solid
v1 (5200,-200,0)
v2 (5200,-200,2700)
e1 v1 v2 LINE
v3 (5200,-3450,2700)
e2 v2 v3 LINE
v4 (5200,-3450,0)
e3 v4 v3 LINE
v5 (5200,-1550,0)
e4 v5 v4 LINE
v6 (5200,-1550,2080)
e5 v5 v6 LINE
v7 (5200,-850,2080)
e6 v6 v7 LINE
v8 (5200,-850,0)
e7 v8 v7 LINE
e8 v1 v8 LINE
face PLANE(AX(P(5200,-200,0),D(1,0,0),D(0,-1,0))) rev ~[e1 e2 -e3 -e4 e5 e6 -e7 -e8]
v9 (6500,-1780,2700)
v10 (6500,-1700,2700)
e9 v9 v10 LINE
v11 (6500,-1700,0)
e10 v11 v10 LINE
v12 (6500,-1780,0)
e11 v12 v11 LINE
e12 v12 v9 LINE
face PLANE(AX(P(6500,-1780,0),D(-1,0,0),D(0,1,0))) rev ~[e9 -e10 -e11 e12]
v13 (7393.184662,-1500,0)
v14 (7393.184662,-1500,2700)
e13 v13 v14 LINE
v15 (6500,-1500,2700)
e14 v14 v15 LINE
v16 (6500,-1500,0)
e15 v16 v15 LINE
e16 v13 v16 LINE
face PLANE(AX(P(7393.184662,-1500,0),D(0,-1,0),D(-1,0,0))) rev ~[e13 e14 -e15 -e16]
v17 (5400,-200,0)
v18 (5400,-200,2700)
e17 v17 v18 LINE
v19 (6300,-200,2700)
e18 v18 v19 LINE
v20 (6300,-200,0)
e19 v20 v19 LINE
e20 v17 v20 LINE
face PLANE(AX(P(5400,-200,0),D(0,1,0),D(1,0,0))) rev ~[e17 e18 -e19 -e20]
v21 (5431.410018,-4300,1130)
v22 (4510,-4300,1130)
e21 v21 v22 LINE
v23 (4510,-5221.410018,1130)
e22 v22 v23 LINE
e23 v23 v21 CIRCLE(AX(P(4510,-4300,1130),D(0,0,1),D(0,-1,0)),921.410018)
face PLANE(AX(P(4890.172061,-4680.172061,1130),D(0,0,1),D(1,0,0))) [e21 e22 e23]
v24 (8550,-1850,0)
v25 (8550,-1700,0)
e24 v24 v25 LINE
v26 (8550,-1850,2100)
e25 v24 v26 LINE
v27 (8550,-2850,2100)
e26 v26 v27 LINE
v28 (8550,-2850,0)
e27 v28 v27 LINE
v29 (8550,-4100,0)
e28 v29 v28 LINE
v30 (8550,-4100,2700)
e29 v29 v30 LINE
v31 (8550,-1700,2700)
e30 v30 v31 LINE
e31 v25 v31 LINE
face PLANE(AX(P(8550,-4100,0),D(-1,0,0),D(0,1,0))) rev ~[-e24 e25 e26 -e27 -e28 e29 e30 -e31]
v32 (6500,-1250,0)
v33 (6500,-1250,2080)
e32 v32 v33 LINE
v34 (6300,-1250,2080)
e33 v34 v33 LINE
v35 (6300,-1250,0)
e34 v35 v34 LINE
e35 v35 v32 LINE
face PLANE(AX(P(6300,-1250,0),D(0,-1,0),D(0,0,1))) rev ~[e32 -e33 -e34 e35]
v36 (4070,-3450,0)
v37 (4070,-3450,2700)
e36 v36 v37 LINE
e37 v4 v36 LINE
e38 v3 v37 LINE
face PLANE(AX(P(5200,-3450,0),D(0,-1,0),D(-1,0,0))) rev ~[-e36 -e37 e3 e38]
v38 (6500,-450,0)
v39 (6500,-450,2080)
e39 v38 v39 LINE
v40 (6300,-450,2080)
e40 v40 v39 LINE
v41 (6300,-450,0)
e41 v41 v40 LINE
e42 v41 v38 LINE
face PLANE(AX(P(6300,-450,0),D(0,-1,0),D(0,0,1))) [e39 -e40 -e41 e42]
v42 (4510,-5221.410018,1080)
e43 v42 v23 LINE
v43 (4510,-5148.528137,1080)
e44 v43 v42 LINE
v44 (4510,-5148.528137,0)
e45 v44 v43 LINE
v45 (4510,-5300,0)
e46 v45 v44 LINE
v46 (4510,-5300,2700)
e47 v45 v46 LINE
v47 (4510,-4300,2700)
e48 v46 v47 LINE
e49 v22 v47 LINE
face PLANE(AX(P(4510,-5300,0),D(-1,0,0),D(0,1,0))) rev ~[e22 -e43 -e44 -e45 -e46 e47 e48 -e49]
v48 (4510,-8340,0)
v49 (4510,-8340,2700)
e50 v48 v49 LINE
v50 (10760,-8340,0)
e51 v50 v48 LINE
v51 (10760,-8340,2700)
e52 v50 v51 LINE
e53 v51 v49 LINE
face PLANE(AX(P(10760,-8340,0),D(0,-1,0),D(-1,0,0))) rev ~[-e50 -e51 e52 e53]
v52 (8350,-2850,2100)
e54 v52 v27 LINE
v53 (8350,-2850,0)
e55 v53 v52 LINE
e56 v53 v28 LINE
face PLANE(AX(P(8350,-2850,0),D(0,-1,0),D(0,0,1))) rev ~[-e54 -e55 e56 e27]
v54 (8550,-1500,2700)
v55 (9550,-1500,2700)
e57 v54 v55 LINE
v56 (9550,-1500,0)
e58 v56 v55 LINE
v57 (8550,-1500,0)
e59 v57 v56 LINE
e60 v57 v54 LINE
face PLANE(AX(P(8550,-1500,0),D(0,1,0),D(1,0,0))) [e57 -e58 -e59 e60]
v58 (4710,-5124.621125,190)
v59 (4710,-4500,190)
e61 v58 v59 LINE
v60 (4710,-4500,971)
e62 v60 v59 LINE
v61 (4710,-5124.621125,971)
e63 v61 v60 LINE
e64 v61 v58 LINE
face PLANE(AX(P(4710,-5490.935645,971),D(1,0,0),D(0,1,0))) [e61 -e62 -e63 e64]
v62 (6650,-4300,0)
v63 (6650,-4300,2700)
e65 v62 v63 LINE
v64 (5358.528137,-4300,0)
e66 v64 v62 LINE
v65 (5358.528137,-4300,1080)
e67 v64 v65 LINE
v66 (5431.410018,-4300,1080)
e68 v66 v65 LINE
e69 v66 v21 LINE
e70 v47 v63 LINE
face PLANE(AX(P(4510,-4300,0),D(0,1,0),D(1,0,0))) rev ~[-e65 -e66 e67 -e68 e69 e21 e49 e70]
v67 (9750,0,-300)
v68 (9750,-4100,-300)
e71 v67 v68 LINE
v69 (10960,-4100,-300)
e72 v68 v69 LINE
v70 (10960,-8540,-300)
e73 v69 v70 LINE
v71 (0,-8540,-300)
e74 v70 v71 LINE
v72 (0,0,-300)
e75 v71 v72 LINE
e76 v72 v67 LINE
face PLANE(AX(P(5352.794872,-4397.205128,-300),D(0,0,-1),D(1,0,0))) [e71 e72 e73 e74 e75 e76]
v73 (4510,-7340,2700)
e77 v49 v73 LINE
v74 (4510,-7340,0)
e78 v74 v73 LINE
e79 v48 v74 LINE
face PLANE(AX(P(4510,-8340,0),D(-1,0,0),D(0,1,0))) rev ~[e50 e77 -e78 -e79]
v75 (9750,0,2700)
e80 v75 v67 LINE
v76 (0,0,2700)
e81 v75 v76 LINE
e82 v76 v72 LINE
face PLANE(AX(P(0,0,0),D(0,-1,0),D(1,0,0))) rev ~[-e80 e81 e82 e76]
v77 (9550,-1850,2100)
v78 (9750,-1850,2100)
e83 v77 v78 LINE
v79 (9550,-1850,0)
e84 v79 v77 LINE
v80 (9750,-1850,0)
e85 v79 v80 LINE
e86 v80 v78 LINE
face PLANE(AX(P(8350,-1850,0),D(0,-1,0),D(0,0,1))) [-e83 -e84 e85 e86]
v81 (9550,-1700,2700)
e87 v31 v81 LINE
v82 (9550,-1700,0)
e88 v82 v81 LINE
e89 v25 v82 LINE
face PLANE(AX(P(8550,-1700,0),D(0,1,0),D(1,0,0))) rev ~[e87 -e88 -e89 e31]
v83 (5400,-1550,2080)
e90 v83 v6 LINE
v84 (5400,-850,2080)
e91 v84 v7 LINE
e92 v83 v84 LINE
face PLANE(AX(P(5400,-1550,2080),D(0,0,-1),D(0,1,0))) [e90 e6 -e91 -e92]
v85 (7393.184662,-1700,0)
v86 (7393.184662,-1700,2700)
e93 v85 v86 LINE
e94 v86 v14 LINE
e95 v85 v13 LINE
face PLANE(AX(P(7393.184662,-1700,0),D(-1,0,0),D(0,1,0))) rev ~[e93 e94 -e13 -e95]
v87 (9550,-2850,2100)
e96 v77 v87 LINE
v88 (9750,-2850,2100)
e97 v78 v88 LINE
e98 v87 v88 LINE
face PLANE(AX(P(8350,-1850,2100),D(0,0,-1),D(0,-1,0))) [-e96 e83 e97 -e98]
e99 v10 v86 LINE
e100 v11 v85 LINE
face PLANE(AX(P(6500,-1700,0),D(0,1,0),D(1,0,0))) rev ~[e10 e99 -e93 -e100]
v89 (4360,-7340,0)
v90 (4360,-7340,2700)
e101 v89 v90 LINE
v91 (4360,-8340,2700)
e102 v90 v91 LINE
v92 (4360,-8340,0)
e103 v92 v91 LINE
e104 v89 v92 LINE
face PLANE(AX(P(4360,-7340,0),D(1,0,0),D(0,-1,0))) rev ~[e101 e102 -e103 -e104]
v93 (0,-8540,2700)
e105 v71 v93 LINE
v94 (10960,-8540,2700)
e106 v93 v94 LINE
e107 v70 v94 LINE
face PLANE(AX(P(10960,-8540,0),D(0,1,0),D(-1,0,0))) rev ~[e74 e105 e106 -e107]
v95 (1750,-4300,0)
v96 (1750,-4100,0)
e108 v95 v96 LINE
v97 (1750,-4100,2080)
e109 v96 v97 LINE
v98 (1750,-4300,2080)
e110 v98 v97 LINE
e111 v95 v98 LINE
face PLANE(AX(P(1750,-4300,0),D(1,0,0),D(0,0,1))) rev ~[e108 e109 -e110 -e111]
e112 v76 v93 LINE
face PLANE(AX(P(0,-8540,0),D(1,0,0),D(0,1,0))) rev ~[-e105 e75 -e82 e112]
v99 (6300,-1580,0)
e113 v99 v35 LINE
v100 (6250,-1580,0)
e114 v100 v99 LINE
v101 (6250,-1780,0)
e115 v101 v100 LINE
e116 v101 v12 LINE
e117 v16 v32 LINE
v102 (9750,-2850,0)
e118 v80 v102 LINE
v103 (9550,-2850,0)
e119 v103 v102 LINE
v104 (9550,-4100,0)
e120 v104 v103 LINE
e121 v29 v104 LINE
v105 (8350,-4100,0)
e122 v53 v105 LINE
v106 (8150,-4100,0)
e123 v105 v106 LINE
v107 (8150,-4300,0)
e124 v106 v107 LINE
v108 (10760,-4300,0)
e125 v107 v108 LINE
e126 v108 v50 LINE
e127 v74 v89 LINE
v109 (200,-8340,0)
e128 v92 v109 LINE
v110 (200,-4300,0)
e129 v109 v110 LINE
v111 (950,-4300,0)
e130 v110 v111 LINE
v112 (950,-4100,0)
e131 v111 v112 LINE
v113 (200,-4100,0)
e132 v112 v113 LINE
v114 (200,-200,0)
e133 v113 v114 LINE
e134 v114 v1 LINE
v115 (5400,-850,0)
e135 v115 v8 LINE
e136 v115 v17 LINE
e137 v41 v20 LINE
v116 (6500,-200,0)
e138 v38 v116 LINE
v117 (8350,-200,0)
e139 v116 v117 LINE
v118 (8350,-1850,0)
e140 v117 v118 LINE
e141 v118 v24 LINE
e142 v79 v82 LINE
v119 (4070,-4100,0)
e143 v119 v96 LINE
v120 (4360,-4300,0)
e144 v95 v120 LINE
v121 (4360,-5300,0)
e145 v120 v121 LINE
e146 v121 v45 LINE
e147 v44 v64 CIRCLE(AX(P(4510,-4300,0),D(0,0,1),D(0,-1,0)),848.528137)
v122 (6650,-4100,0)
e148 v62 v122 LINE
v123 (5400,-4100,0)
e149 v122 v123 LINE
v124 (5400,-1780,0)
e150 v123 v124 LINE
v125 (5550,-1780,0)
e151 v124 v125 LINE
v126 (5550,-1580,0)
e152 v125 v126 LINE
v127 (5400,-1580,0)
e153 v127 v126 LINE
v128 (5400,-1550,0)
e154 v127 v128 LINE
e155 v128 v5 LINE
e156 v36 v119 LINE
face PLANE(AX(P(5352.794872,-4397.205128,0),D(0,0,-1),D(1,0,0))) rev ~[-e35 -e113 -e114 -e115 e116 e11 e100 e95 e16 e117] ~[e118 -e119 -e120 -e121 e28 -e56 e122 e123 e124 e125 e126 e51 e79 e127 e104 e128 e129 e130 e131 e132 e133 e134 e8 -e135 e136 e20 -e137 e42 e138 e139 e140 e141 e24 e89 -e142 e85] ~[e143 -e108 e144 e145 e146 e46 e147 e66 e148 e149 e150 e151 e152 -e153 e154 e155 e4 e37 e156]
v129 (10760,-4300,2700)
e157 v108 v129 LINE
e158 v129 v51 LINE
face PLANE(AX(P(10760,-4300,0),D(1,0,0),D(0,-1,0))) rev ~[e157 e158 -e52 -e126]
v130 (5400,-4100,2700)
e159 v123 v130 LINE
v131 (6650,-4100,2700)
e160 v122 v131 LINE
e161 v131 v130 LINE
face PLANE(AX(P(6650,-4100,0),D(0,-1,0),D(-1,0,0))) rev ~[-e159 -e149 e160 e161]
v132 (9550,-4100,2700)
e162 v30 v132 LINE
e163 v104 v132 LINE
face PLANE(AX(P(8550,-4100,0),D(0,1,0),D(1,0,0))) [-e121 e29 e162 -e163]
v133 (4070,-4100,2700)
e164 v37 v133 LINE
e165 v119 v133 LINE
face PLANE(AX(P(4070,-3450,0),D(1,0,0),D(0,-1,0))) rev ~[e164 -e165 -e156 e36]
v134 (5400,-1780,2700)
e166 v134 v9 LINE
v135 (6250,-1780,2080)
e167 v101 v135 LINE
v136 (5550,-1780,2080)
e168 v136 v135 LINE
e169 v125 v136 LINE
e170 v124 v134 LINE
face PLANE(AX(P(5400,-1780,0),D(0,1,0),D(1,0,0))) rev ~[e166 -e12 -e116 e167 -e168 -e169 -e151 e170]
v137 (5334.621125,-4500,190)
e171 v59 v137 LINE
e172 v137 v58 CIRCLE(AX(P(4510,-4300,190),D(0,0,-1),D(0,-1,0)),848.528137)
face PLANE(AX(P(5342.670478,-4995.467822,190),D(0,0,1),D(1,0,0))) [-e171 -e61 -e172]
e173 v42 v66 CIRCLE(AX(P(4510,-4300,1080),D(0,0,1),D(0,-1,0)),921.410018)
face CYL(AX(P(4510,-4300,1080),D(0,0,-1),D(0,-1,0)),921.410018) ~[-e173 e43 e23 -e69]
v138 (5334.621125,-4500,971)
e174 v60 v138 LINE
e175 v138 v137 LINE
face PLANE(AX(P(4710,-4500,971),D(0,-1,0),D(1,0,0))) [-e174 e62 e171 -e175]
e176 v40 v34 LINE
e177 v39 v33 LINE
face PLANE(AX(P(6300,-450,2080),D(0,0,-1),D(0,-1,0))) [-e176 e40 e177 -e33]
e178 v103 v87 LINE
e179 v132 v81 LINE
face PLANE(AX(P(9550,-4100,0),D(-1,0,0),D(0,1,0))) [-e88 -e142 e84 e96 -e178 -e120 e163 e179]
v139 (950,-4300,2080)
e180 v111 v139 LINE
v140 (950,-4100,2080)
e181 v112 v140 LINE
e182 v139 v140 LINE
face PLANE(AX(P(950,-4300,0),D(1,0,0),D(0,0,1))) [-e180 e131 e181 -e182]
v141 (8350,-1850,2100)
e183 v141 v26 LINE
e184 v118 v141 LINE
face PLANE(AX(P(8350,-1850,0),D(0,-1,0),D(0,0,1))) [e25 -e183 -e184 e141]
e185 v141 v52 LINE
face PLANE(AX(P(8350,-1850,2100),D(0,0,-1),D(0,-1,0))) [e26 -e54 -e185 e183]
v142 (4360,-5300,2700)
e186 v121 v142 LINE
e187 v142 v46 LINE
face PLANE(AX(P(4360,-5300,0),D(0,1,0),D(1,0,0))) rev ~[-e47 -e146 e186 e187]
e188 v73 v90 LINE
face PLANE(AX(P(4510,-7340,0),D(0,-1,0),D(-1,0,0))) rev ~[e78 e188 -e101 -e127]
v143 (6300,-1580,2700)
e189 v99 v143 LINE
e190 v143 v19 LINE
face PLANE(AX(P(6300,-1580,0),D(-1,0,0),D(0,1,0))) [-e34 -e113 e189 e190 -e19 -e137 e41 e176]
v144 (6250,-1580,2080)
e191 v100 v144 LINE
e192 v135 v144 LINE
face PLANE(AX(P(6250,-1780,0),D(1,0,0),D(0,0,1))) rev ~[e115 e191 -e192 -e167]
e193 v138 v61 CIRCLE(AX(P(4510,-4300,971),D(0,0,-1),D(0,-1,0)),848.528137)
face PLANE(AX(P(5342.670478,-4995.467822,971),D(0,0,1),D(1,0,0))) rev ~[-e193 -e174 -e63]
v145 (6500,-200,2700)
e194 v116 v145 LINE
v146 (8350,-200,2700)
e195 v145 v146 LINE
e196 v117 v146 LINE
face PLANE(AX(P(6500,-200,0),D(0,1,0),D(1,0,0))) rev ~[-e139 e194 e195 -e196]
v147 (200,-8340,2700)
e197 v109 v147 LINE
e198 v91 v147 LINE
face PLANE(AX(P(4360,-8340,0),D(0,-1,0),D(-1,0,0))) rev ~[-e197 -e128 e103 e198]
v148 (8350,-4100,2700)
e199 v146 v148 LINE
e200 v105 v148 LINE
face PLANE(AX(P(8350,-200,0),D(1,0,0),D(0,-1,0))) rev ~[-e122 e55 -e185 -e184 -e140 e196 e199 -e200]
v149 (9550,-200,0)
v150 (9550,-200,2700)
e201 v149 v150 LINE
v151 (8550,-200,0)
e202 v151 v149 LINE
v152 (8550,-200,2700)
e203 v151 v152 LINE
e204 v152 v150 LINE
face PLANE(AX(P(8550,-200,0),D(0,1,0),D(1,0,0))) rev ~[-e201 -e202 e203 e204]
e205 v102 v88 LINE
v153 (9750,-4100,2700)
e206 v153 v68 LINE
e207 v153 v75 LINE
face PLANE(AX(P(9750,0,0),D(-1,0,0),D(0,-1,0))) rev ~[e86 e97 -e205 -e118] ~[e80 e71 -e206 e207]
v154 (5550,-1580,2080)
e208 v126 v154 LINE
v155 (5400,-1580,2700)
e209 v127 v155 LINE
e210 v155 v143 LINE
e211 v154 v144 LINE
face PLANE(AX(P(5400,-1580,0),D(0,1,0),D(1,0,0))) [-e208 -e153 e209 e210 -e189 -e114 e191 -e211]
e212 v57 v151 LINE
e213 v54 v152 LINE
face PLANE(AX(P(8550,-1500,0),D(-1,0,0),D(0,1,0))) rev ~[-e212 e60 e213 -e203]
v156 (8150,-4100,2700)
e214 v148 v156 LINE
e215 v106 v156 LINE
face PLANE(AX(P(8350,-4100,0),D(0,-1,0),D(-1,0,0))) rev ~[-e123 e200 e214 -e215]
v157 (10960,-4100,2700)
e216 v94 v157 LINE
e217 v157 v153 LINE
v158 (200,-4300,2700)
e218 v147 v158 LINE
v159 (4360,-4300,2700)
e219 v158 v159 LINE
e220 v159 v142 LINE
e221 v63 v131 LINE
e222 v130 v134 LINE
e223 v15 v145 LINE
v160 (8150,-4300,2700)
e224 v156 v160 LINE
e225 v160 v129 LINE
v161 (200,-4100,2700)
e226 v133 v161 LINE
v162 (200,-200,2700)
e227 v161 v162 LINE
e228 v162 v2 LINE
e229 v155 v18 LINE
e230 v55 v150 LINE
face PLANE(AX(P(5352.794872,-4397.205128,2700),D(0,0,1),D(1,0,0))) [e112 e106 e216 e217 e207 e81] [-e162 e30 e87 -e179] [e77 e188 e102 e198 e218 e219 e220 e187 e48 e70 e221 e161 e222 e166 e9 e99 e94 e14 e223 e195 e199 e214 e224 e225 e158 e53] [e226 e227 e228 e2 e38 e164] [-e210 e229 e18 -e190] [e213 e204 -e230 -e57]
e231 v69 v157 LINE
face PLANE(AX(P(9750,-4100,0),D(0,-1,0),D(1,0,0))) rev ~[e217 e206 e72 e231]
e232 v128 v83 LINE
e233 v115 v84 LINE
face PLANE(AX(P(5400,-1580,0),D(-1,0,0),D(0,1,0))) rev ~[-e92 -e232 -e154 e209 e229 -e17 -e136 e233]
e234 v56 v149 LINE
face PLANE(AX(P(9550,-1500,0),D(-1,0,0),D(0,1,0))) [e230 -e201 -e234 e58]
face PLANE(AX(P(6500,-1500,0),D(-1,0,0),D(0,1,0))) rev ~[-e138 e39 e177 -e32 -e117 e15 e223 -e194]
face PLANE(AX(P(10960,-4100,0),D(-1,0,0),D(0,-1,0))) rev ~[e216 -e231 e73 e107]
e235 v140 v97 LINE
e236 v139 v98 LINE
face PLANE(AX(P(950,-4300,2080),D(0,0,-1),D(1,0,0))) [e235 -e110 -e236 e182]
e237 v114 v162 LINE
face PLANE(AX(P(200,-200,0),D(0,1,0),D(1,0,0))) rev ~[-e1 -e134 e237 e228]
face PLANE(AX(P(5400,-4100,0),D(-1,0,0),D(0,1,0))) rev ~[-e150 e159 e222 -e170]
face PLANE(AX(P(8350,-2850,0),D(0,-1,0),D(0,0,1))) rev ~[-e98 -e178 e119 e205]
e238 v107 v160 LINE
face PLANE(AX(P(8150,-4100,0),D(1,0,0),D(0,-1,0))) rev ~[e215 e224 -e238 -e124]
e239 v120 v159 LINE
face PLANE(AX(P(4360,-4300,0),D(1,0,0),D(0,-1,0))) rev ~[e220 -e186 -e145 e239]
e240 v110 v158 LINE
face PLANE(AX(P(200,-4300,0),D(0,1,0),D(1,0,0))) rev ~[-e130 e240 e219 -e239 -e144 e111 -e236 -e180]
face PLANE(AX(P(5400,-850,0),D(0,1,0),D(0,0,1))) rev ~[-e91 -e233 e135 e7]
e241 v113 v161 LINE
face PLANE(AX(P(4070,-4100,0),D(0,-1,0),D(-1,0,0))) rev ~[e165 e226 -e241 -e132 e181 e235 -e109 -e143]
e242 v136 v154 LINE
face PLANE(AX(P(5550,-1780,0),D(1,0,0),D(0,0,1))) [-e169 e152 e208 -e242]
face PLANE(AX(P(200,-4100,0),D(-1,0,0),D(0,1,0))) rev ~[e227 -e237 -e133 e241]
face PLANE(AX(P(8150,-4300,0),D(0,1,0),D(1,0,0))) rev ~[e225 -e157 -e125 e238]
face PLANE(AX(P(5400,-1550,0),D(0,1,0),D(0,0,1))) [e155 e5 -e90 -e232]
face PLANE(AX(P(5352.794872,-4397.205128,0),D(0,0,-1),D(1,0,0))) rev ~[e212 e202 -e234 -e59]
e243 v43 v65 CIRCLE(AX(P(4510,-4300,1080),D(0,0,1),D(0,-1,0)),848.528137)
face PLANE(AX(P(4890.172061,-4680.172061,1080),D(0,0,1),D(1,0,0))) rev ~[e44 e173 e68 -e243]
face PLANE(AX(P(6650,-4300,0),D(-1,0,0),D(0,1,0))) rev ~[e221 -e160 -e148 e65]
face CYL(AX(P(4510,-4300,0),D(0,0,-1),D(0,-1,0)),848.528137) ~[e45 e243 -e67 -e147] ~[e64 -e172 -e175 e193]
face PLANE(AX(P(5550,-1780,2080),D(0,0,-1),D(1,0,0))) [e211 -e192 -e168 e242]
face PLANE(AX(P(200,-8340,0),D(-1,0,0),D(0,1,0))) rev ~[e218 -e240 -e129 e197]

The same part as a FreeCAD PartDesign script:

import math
import FreeCAD as App
import Part
import Sketcher

doc = App.newDocument("Part")
body = doc.addObject("PartDesign::Body", "Body")

# Sketch on XY plane
sketch1 = body.newObject("Sketcher::SketchObject", "Sketch")
sketch1.AttachmentSupport = (doc.getObject("XY_Plane"), [""])
sketch1.MapMode = "FlatFace"
sketch1.addGeometry([
    Part.LineSegment(App.Vector(9750, 0, 0), App.Vector(0, 0, 0)),  # 0
    Part.LineSegment(App.Vector(0, 0, 0), App.Vector(0, -8540, 0)),  # 1
    Part.LineSegment(App.Vector(0, -8540, 0), App.Vector(10960, -8540, 0)),  # 2
    Part.LineSegment(App.Vector(10960, -8540, 0), App.Vector(10960, -4100, 0)),  # 3
    Part.LineSegment(App.Vector(10960, -4100, 0), App.Vector(9750, -4100, 0)),  # 4
    Part.LineSegment(App.Vector(9750, -4100, 0), App.Vector(9750, 0, 0)),  # 5
    Part.LineSegment(App.Vector(4070, -4100, 0), App.Vector(200, -4100, 0)),  # 6
    Part.LineSegment(App.Vector(200, -4100, 0), App.Vector(200, -200, 0)),  # 7
    Part.LineSegment(App.Vector(200, -200, 0), App.Vector(5200, -200, 0)),  # 8
    Part.LineSegment(App.Vector(5200, -200, 0), App.Vector(5200, -3450, 0)),  # 9
    Part.LineSegment(App.Vector(5200, -3450, 0), App.Vector(4070, -3450, 0)),  # 10
    Part.LineSegment(App.Vector(4070, -3450, 0), App.Vector(4070, -4100, 0)),  # 11
    Part.LineSegment(App.Vector(4360, -8340, 0), App.Vector(200, -8340, 0)),  # 12
    Part.LineSegment(App.Vector(200, -8340, 0), App.Vector(200, -4300, 0)),  # 13
    Part.LineSegment(App.Vector(200, -4300, 0), App.Vector(4360, -4300, 0)),  # 14
    Part.LineSegment(App.Vector(4360, -4300, 0), App.Vector(4360, -5300, 0)),  # 15
    Part.LineSegment(App.Vector(4360, -5300, 0), App.Vector(4510, -5300, 0)),  # 16
    Part.LineSegment(App.Vector(4510, -5300, 0), App.Vector(4510, -4300, 0)),  # 17
    Part.LineSegment(App.Vector(4510, -4300, 0), App.Vector(6650, -4300, 0)),  # 18
    Part.LineSegment(App.Vector(6650, -4300, 0), App.Vector(6650, -4100, 0)),  # 19
    Part.LineSegment(App.Vector(6650, -4100, 0), App.Vector(5400, -4100, 0)),  # 20
    Part.LineSegment(App.Vector(5400, -4100, 0), App.Vector(5400, -1780, 0)),  # 21
    Part.LineSegment(App.Vector(5400, -1780, 0), App.Vector(6500, -1780, 0)),  # 22
    Part.LineSegment(App.Vector(6500, -1780, 0), App.Vector(6500, -1700, 0)),  # 23
    Part.LineSegment(App.Vector(6500, -1700, 0), App.Vector(7393, -1700, 0)),  # 24
    Part.LineSegment(App.Vector(7393, -1700, 0), App.Vector(7393, -1500, 0)),  # 25
    Part.LineSegment(App.Vector(7393, -1500, 0), App.Vector(6500, -1500, 0)),  # 26
    Part.LineSegment(App.Vector(6500, -1500, 0), App.Vector(6500, -200, 0)),  # 27
    Part.LineSegment(App.Vector(6500, -200, 0), App.Vector(8350, -200, 0)),  # 28
    Part.LineSegment(App.Vector(8350, -200, 0), App.Vector(8350, -4100, 0)),  # 29
    Part.LineSegment(App.Vector(8350, -4100, 0), App.Vector(8150, -4100, 0)),  # 30
    Part.LineSegment(App.Vector(8150, -4100, 0), App.Vector(8150, -4300, 0)),  # 31
    Part.LineSegment(App.Vector(8150, -4300, 0), App.Vector(10760, -4300, 0)),  # 32
    Part.LineSegment(App.Vector(10760, -4300, 0), App.Vector(10760, -8340, 0)),  # 33
    Part.LineSegment(App.Vector(10760, -8340, 0), App.Vector(4510, -8340, 0)),  # 34
    Part.LineSegment(App.Vector(4510, -8340, 0), App.Vector(4510, -7340, 0)),  # 35
    Part.LineSegment(App.Vector(4510, -7340, 0), App.Vector(4360, -7340, 0)),  # 36
    Part.LineSegment(App.Vector(4360, -7340, 0), App.Vector(4360, -8340, 0)),  # 37
    Part.LineSegment(App.Vector(9550, -4100, 0), App.Vector(8550, -4100, 0)),  # 38
    Part.LineSegment(App.Vector(8550, -4100, 0), App.Vector(8550, -1700, 0)),  # 39
    Part.LineSegment(App.Vector(8550, -1700, 0), App.Vector(9550, -1700, 0)),  # 40
    Part.LineSegment(App.Vector(9550, -1700, 0), App.Vector(9550, -4100, 0)),  # 41
    Part.LineSegment(App.Vector(6300, -1580, 0), App.Vector(5400, -1580, 0)),  # 42
    Part.LineSegment(App.Vector(5400, -1580, 0), App.Vector(5400, -200, 0)),  # 43
    Part.LineSegment(App.Vector(5400, -200, 0), App.Vector(6300, -200, 0)),  # 44
    Part.LineSegment(App.Vector(6300, -200, 0), App.Vector(6300, -1580, 0)),  # 45
    Part.LineSegment(App.Vector(9550, -1500, 0), App.Vector(8550, -1500, 0)),  # 46
    Part.LineSegment(App.Vector(8550, -1500, 0), App.Vector(8550, -200, 0)),  # 47
    Part.LineSegment(App.Vector(8550, -200, 0), App.Vector(9550, -200, 0)),  # 48
    Part.LineSegment(App.Vector(9550, -200, 0), App.Vector(9550, -1500, 0)),  # 49
], False)
sketch1.addConstraint([
    Sketcher.Constraint("Coincident", 0, 2, 1, 1),
    Sketcher.Constraint("Coincident", 1, 2, 2, 1),
    Sketcher.Constraint("Coincident", 2, 2, 3, 1),
    Sketcher.Constraint("Coincident", 3, 2, 4, 1),
    Sketcher.Constraint("Coincident", 4, 2, 5, 1),
    Sketcher.Constraint("Coincident", 5, 2, 0, 1),
    Sketcher.Constraint("Coincident", 6, 2, 7, 1),
    Sketcher.Constraint("Coincident", 7, 2, 8, 1),
    Sketcher.Constraint("Coincident", 8, 2, 9, 1),
    Sketcher.Constraint("Coincident", 9, 2, 10, 1),
    Sketcher.Constraint("Coincident", 10, 2, 11, 1),
    Sketcher.Constraint("Coincident", 11, 2, 6, 1),
    Sketcher.Constraint("Coincident", 12, 2, 13, 1),
    Sketcher.Constraint("Coincident", 13, 2, 14, 1),
    Sketcher.Constraint("Coincident", 14, 2, 15, 1),
    Sketcher.Constraint("Coincident", 15, 2, 16, 1),
    Sketcher.Constraint("Coincident", 16, 2, 17, 1),
    Sketcher.Constraint("Coincident", 17, 2, 18, 1),
    Sketcher.Constraint("Coincident", 18, 2, 19, 1),
    Sketcher.Constraint("Coincident", 19, 2, 20, 1),
    Sketcher.Constraint("Coincident", 20, 2, 21, 1),
    Sketcher.Constraint("Coincident", 21, 2, 22, 1),
    Sketcher.Constraint("Coincident", 22, 2, 23, 1),
    Sketcher.Constraint("Coincident", 23, 2, 24, 1),
    Sketcher.Constraint("Coincident", 24, 2, 25, 1),
    Sketcher.Constraint("Coincident", 25, 2, 26, 1),
    Sketcher.Constraint("Coincident", 26, 2, 27, 1),
    Sketcher.Constraint("Coincident", 27, 2, 28, 1),
    Sketcher.Constraint("Coincident", 28, 2, 29, 1),
    Sketcher.Constraint("Coincident", 29, 2, 30, 1),
    Sketcher.Constraint("Coincident", 30, 2, 31, 1),
    Sketcher.Constraint("Coincident", 31, 2, 32, 1),
    Sketcher.Constraint("Coincident", 32, 2, 33, 1),
    Sketcher.Constraint("Coincident", 33, 2, 34, 1),
    Sketcher.Constraint("Coincident", 34, 2, 35, 1),
    Sketcher.Constraint("Coincident", 35, 2, 36, 1),
    Sketcher.Constraint("Coincident", 36, 2, 37, 1),
    Sketcher.Constraint("Coincident", 37, 2, 12, 1),
    Sketcher.Constraint("Coincident", 38, 2, 39, 1),
    Sketcher.Constraint("Coincident", 39, 2, 40, 1),
    Sketcher.Constraint("Coincident", 40, 2, 41, 1),
    Sketcher.Constraint("Coincident", 41, 2, 38, 1),
    Sketcher.Constraint("Coincident", 42, 2, 43, 1),
    Sketcher.Constraint("Coincident", 43, 2, 44, 1),
    Sketcher.Constraint("Coincident", 44, 2, 45, 1),
    Sketcher.Constraint("Coincident", 45, 2, 42, 1),
    Sketcher.Constraint("Coincident", 46, 2, 47, 1),
    Sketcher.Constraint("Coincident", 47, 2, 48, 1),
    Sketcher.Constraint("Coincident", 48, 2, 49, 1),
    Sketcher.Constraint("Coincident", 49, 2, 46, 1),
    Sketcher.Constraint("Horizontal", 0),
    Sketcher.Constraint("Vertical", 1),
    Sketcher.Constraint("Horizontal", 2),
    Sketcher.Constraint("Vertical", 3),
    Sketcher.Constraint("Horizontal", 4),
    Sketcher.Constraint("Vertical", 5),
    Sketcher.Constraint("Horizontal", 6),
    Sketcher.Constraint("Vertical", 7),
    Sketcher.Constraint("Horizontal", 8),
    Sketcher.Constraint("Vertical", 9),
    Sketcher.Constraint("Horizontal", 10),
    Sketcher.Constraint("Vertical", 11),
    Sketcher.Constraint("Horizontal", 12),
    Sketcher.Constraint("Vertical", 13),
    Sketcher.Constraint("Horizontal", 14),
    Sketcher.Constraint("Vertical", 15),
    Sketcher.Constraint("Horizontal", 16),
    Sketcher.Constraint("Vertical", 17),
    Sketcher.Constraint("Horizontal", 18),
    Sketcher.Constraint("Vertical", 19),
    Sketcher.Constraint("Horizontal", 20),
    Sketcher.Constraint("Vertical", 21),
    Sketcher.Constraint("Horizontal", 22),
    Sketcher.Constraint("Vertical", 23),
    Sketcher.Constraint("Horizontal", 24),
    Sketcher.Constraint("Vertical", 25),
    Sketcher.Constraint("Horizontal", 26),
    Sketcher.Constraint("Vertical", 27),
    Sketcher.Constraint("Horizontal", 28),
    Sketcher.Constraint("Vertical", 29),
    Sketcher.Constraint("Horizontal", 30),
    Sketcher.Constraint("Vertical", 31),
    Sketcher.Constraint("Horizontal", 32),
    Sketcher.Constraint("Vertical", 33),
    Sketcher.Constraint("Horizontal", 34),
    Sketcher.Constraint("Vertical", 35),
    Sketcher.Constraint("Horizontal", 36),
    Sketcher.Constraint("Vertical", 37),
    Sketcher.Constraint("Horizontal", 38),
    Sketcher.Constraint("Vertical", 39),
    Sketcher.Constraint("Horizontal", 40),
    Sketcher.Constraint("Vertical", 41),
    Sketcher.Constraint("Horizontal", 42),
    Sketcher.Constraint("Vertical", 43),
    Sketcher.Constraint("Horizontal", 44),
    Sketcher.Constraint("Vertical", 45),
    Sketcher.Constraint("Horizontal", 46),
    Sketcher.Constraint("Vertical", 47),
    Sketcher.Constraint("Horizontal", 48),
    Sketcher.Constraint("Vertical", 49),
    Sketcher.Constraint("Coincident", 0, 2, -1, 1),
    Sketcher.Constraint("Horizontal", 4, 2, 6, 2),
    Sketcher.Constraint("Horizontal", 14, 2, 17, 2),
    Sketcher.Constraint("Horizontal", 11, 2, 19, 2),
    Sketcher.Constraint("Horizontal", 8, 2, 27, 2),
    Sketcher.Constraint("Horizontal", 20, 2, 29, 2),
    Sketcher.Constraint("Horizontal", 18, 2, 31, 2),
    Sketcher.Constraint("Horizontal", 12, 2, 33, 2),
    Sketcher.Constraint("Horizontal", 30, 2, 38, 2),
    Sketcher.Constraint("Horizontal", 24, 2, 39, 2),
    Sketcher.Constraint("Horizontal", 28, 2, 43, 2),
    Sketcher.Constraint("Horizontal", 26, 2, 46, 2),
    Sketcher.Constraint("Horizontal", 44, 2, 47, 2),
    Sketcher.Constraint("Vertical", 7, 2, 12, 2),
    Sketcher.Constraint("Vertical", 23, 2, 26, 2),
    Sketcher.Constraint("Vertical", 17, 2, 34, 2),
    Sketcher.Constraint("Vertical", 15, 2, 36, 2),
    Sketcher.Constraint("Vertical", 21, 2, 42, 2),
    Sketcher.Constraint("Vertical", 39, 2, 46, 2),
    Sketcher.Constraint("Vertical", 41, 2, 48, 2),
    Sketcher.Constraint("Equal", 48, 15),
    Sketcher.Constraint("Equal", 30, 19),
    Sketcher.Constraint("Equal", 19, 25),
    Sketcher.Constraint("Equal", 17, 35),
    Sketcher.Constraint("DistanceX", 0, 2, 0, 1, 9750.0),
    Sketcher.Constraint("DistanceX", 2, 1, 2, 2, 10960.0),
    Sketcher.Constraint("DistanceX", 6, 2, 6, 1, 3870.0),
    Sketcher.Constraint("DistanceX", 8, 1, 8, 2, 5000.0),
    Sketcher.Constraint("DistanceX", 12, 2, 12, 1, 4160.0),
    Sketcher.Constraint("DistanceX", 16, 1, 16, 2, 150.0),
    Sketcher.Constraint("DistanceX", 18, 1, 18, 2, 2140.0),
    Sketcher.Constraint("DistanceX", 20, 2, 20, 1, 1250.0),
    Sketcher.Constraint("DistanceX", 22, 1, 22, 2, 1100.0),
    Sketcher.Constraint("DistanceX", 28, 1, 28, 2, 1850.0),
    Sketcher.Constraint("DistanceX", 30, 2, 30, 1, 200.0),
    Sketcher.Constraint("DistanceX", 32, 1, 32, 2, 2610.0),
    Sketcher.Constraint("DistanceX", 38, 2, 38, 1, 1000.0),
    Sketcher.Constraint("DistanceX", 42, 2, 42, 1, 900.0),
    Sketcher.Constraint("DistanceY", 1, 2, 1, 1, 8540.0),
    Sketcher.Constraint("DistanceY", 3, 1, 3, 2, 4440.0),
    Sketcher.Constraint("DistanceY", 7, 1, 7, 2, 3900.0),
    Sketcher.Constraint("DistanceY", 9, 2, 9, 1, 3250.0),
    Sketcher.Constraint("DistanceY", 13, 1, 13, 2, 4040.0),
    Sketcher.Constraint("DistanceY", 21, 1, 21, 2, 2320.0),
    Sketcher.Constraint("DistanceY", 23, 1, 23, 2, 80.0),
    Sketcher.Constraint("DistanceY", 43, 1, 43, 2, 1380.0),
    Sketcher.Constraint("DistanceX", -1, 1, 6, 2, 200.0),
    Sketcher.Constraint("DistanceX", -1, 1, 38, 2, 8550.0),
    Sketcher.Constraint("DistanceX", 24, 1, 24, 2, 893.184662),
])
pad1 = body.newObject("PartDesign::Pad", "Pad")
pad1.Profile = sketch1
pad1.Length = 2700

# Sketch on XY plane
sketch2 = body.newObject("Sketcher::SketchObject", "Sketch001")
sketch2.AttachmentSupport = (doc.getObject("XY_Plane"), [""])
sketch2.MapMode = "FlatFace"
sketch2.addGeometry([
    Part.LineSegment(App.Vector(0, -8540, 0), App.Vector(0, 0, 0)),  # 0
    Part.LineSegment(App.Vector(0, 0, 0), App.Vector(9750, 0, 0)),  # 1
    Part.LineSegment(App.Vector(9750, 0, 0), App.Vector(9750, -4100, 0)),  # 2
    Part.LineSegment(App.Vector(9750, -4100, 0), App.Vector(10960, -4100, 0)),  # 3
    Part.LineSegment(App.Vector(10960, -4100, 0), App.Vector(10960, -8540, 0)),  # 4
    Part.LineSegment(App.Vector(10960, -8540, 0), App.Vector(0, -8540, 0)),  # 5
], False)
sketch2.addConstraint([
    Sketcher.Constraint("Coincident", 0, 2, 1, 1),
    Sketcher.Constraint("Coincident", 1, 2, 2, 1),
    Sketcher.Constraint("Coincident", 2, 2, 3, 1),
    Sketcher.Constraint("Coincident", 3, 2, 4, 1),
    Sketcher.Constraint("Coincident", 4, 2, 5, 1),
    Sketcher.Constraint("Coincident", 5, 2, 0, 1),
    Sketcher.Constraint("Vertical", 0),
    Sketcher.Constraint("Horizontal", 1),
    Sketcher.Constraint("Vertical", 2),
    Sketcher.Constraint("Horizontal", 3),
    Sketcher.Constraint("Vertical", 4),
    Sketcher.Constraint("Horizontal", 5),
    Sketcher.Constraint("Coincident", 0, 2, -1, 1),
    Sketcher.Constraint("DistanceX", 1, 1, 1, 2, 9750.0),
    Sketcher.Constraint("DistanceX", 3, 1, 3, 2, 1210.0),
    Sketcher.Constraint("DistanceY", 0, 1, 0, 2, 8540.0),
    Sketcher.Constraint("DistanceY", 2, 2, 2, 1, 4100.0),
])
pad2 = body.newObject("PartDesign::Pad", "Pad001")
pad2.Profile = sketch2
pad2.Length = 300
pad2.Reversed = True

# Sketch on XZ plane
sketch3 = body.newObject("Sketcher::SketchObject", "Sketch002")
sketch3.AttachmentSupport = (doc.getObject("XZ_Plane"), [""])
sketch3.MapMode = "FlatFace"
sketch3.AttachmentOffset = App.Placement(App.Vector(0, 0, 1780), App.Rotation())
sketch3.addGeometry([
    Part.LineSegment(App.Vector(5550, 2080, 0), App.Vector(5550, 0, 0)),
    Part.LineSegment(App.Vector(5550, 0, 0), App.Vector(6250, 0, 0)),
    Part.LineSegment(App.Vector(6250, 0, 0), App.Vector(6250, 2080, 0)),
    Part.LineSegment(App.Vector(6250, 2080, 0), App.Vector(5550, 2080, 0)),
], False)
sketch3.addConstraint([
    Sketcher.Constraint("Coincident", 0, 2, 1, 1),
    Sketcher.Constraint("Coincident", 1, 2, 2, 1),
    Sketcher.Constraint("Coincident", 2, 2, 3, 1),
    Sketcher.Constraint("Coincident", 3, 2, 0, 1),
    Sketcher.Constraint("Vertical", 0),
    Sketcher.Constraint("Horizontal", 1),
    Sketcher.Constraint("Vertical", 2),
    Sketcher.Constraint("Horizontal", 3),
    Sketcher.Constraint("PointOnObject", 0, 2, -1),
    Sketcher.Constraint("DistanceX", 1, 1, 1, 2, 700.0),
    Sketcher.Constraint("DistanceY", 0, 2, 0, 1, 2080.0),
    Sketcher.Constraint("DistanceX", -1, 1, 0, 2, 5550.0),
])
pocket1 = body.newObject("PartDesign::Pocket", "Pocket")
pocket1.Profile = sketch3
pocket1.Length = 200

# Sketch on YZ plane
sketch4 = body.newObject("Sketcher::SketchObject", "Sketch003")
sketch4.AttachmentSupport = (doc.getObject("YZ_Plane"), [""])
sketch4.MapMode = "FlatFace"
sketch4.AttachmentOffset = App.Placement(App.Vector(0, 0, 5400), App.Rotation())
sketch4.addGeometry([
    Part.LineSegment(App.Vector(-1550, 2080, 0), App.Vector(-1550, 0, 0)),
    Part.LineSegment(App.Vector(-1550, 0, 0), App.Vector(-850, 0, 0)),
    Part.LineSegment(App.Vector(-850, 0, 0), App.Vector(-850, 2080, 0)),
    Part.LineSegment(App.Vector(-850, 2080, 0), App.Vector(-1550, 2080, 0)),
], False)
sketch4.addConstraint([
    Sketcher.Constraint("Coincident", 0, 2, 1, 1),
    Sketcher.Constraint("Coincident", 1, 2, 2, 1),
    Sketcher.Constraint("Coincident", 2, 2, 3, 1),
    Sketcher.Constraint("Coincident", 3, 2, 0, 1),
    Sketcher.Constraint("Vertical", 0),
    Sketcher.Constraint("Horizontal", 1),
    Sketcher.Constraint("Vertical", 2),
    Sketcher.Constraint("Horizontal", 3),
    Sketcher.Constraint("PointOnObject", 0, 2, -1),
    Sketcher.Constraint("DistanceX", 1, 1, 1, 2, 700.0),
    Sketcher.Constraint("DistanceY", 0, 2, 0, 1, 2080.0),
    Sketcher.Constraint("DistanceX", 0, 2, -1, 1, 1550.0),
])
pocket2 = body.newObject("PartDesign::Pocket", "Pocket001")
pocket2.Profile = sketch4
pocket2.Length = 200

# Sketch on YZ plane
sketch5 = body.newObject("Sketcher::SketchObject", "Sketch004")
sketch5.AttachmentSupport = (doc.getObject("YZ_Plane"), [""])
sketch5.MapMode = "FlatFace"
sketch5.AttachmentOffset = App.Placement(App.Vector(0, 0, 6300), App.Rotation())
sketch5.addGeometry([
    Part.LineSegment(App.Vector(-450, 2080, 0), App.Vector(-450, 0, 0)),
    Part.LineSegment(App.Vector(-450, 0, 0), App.Vector(-1250, 0, 0)),
    Part.LineSegment(App.Vector(-1250, 0, 0), App.Vector(-1250, 2080, 0)),
    Part.LineSegment(App.Vector(-1250, 2080, 0), App.Vector(-450, 2080, 0)),
], False)
sketch5.addConstraint([
    Sketcher.Constraint("Coincident", 0, 2, 1, 1),
    Sketcher.Constraint("Coincident", 1, 2, 2, 1),
    Sketcher.Constraint("Coincident", 2, 2, 3, 1),
    Sketcher.Constraint("Coincident", 3, 2, 0, 1),
    Sketcher.Constraint("Vertical", 0),
    Sketcher.Constraint("Horizontal", 1),
    Sketcher.Constraint("Vertical", 2),
    Sketcher.Constraint("Horizontal", 3),
    Sketcher.Constraint("PointOnObject", 0, 2, -1),
    Sketcher.Constraint("DistanceX", 1, 2, 1, 1, 800.0),
    Sketcher.Constraint("DistanceY", 0, 2, 0, 1, 2080.0),
    Sketcher.Constraint("DistanceX", 0, 2, -1, 1, 450.0),
])
pocket3 = body.newObject("PartDesign::Pocket", "Pocket002")
pocket3.Profile = sketch5
pocket3.Length = 200
pocket3.Reversed = True

# Sketch on XY plane
sketch6 = body.newObject("Sketcher::SketchObject", "Sketch005")
sketch6.AttachmentSupport = (doc.getObject("XY_Plane"), [""])
sketch6.MapMode = "FlatFace"
sketch6.addGeometry([
    Part.LineSegment(App.Vector(5359, -4300, 0), App.Vector(4510, -4300, 0)),
    Part.LineSegment(App.Vector(4510, -4300, 0), App.Vector(4510, -5149, 0)),
    Part.ArcOfCircle(Part.Circle(App.Vector(4510, -4300, 0), App.Vector(0, 0, 1), 849), math.radians(-90), math.radians(0)),
], False)
sketch6.addConstraint([
    Sketcher.Constraint("Coincident", 0, 2, 1, 1),
    Sketcher.Constraint("Coincident", 1, 2, 2, 1),
    Sketcher.Constraint("Coincident", 2, 2, 0, 1),
    Sketcher.Constraint("Horizontal", 0),
    Sketcher.Constraint("Vertical", 1),
    Sketcher.Constraint("Coincident", 0, 2, 2, 3),
    Sketcher.Constraint("DistanceX", -1, 1, 2, 3, 4510.0),
    Sketcher.Constraint("DistanceY", 2, 3, -1, 1, 4300.0),
    Sketcher.Constraint("Radius", 2, 848.528137),
])
pad3 = body.newObject("PartDesign::Pad", "Pad002")
pad3.Profile = sketch6
pad3.Length = 1080

# Sketch on XY plane
sketch7 = body.newObject("Sketcher::SketchObject", "Sketch006")
sketch7.AttachmentSupport = (doc.getObject("XY_Plane"), [""])
sketch7.MapMode = "FlatFace"
sketch7.AttachmentOffset = App.Placement(App.Vector(0, 0, 1080), App.Rotation())
sketch7.addGeometry([
    Part.LineSegment(App.Vector(4510, -4300, 0), App.Vector(4510, -5221, 0)),
    Part.ArcOfCircle(Part.Circle(App.Vector(4510, -4300, 0), App.Vector(0, 0, 1), 921), math.radians(-90), math.radians(0)),
    Part.LineSegment(App.Vector(5431, -4300, 0), App.Vector(4510, -4300, 0)),
], False)
sketch7.addConstraint([
    Sketcher.Constraint("Coincident", 0, 2, 1, 1),
    Sketcher.Constraint("Coincident", 1, 2, 2, 1),
    Sketcher.Constraint("Coincident", 2, 2, 0, 1),
    Sketcher.Constraint("Vertical", 0),
    Sketcher.Constraint("Horizontal", 2),
    Sketcher.Constraint("Coincident", 2, 2, 1, 3),
    Sketcher.Constraint("DistanceX", -1, 1, 1, 3, 4510.0),
    Sketcher.Constraint("DistanceY", 1, 3, -1, 1, 4300.0),
    Sketcher.Constraint("Radius", 1, 921.410018),
])
pad4 = body.newObject("PartDesign::Pad", "Pad003")
pad4.Profile = sketch7
pad4.Length = 50

# Sketch on XY plane
sketch8 = body.newObject("Sketcher::SketchObject", "Sketch007")
sketch8.AttachmentSupport = (doc.getObject("XY_Plane"), [""])
sketch8.MapMode = "FlatFace"
sketch8.AttachmentOffset = App.Placement(App.Vector(0, 0, 971), App.Rotation())
sketch8.addGeometry([
    Part.LineSegment(App.Vector(4710, -4500, 0), App.Vector(4710, -5491, 0)),
    Part.LineSegment(App.Vector(4710, -5491, 0), App.Vector(5975, -5491, 0)),
    Part.LineSegment(App.Vector(5975, -5491, 0), App.Vector(5975, -4500, 0)),
    Part.LineSegment(App.Vector(5975, -4500, 0), App.Vector(4710, -4500, 0)),
], False)
sketch8.addConstraint([
    Sketcher.Constraint("Coincident", 0, 2, 1, 1),
    Sketcher.Constraint("Coincident", 1, 2, 2, 1),
    Sketcher.Constraint("Coincident", 2, 2, 3, 1),
    Sketcher.Constraint("Coincident", 3, 2, 0, 1),
    Sketcher.Constraint("Vertical", 0),
    Sketcher.Constraint("Horizontal", 1),
    Sketcher.Constraint("Vertical", 2),
    Sketcher.Constraint("Horizontal", 3),
    Sketcher.Constraint("DistanceX", -1, 1, 0, 2, 4710.0),
    Sketcher.Constraint("DistanceY", 2, 2, -1, 1, 4500.0),
    Sketcher.Constraint("DistanceX", 1, 1, 1, 2, 1265.340956),
    Sketcher.Constraint("DistanceY", 0, 2, 0, 1, 990.935645),
])
pocket4 = body.newObject("PartDesign::Pocket", "Pocket003")
pocket4.Profile = sketch8
pocket4.Length = 781

# Sketch on YZ plane
sketch9 = body.newObject("Sketcher::SketchObject", "Sketch008")
sketch9.AttachmentSupport = (doc.getObject("YZ_Plane"), [""])
sketch9.MapMode = "FlatFace"
sketch9.AttachmentOffset = App.Placement(App.Vector(0, 0, 8350), App.Rotation())
sketch9.addGeometry([
    Part.LineSegment(App.Vector(-1850, 2100, 0), App.Vector(-1850, 0, 0)),
    Part.LineSegment(App.Vector(-1850, 0, 0), App.Vector(-2850, 0, 0)),
    Part.LineSegment(App.Vector(-2850, 0, 0), App.Vector(-2850, 2100, 0)),
    Part.LineSegment(App.Vector(-2850, 2100, 0), App.Vector(-1850, 2100, 0)),
], False)
sketch9.addConstraint([
    Sketcher.Constraint("Coincident", 0, 2, 1, 1),
    Sketcher.Constraint("Coincident", 1, 2, 2, 1),
    Sketcher.Constraint("Coincident", 2, 2, 3, 1),
    Sketcher.Constraint("Coincident", 3, 2, 0, 1),
    Sketcher.Constraint("Vertical", 0),
    Sketcher.Constraint("Horizontal", 1),
    Sketcher.Constraint("Vertical", 2),
    Sketcher.Constraint("Horizontal", 3),
    Sketcher.Constraint("PointOnObject", 0, 2, -1),
    Sketcher.Constraint("DistanceX", 1, 2, 1, 1, 1000.0),
    Sketcher.Constraint("DistanceY", 0, 2, 0, 1, 2100.0),
    Sketcher.Constraint("DistanceX", 0, 2, -1, 1, 1850.0),
])
pocket5 = body.newObject("PartDesign::Pocket", "Pocket004")
pocket5.Profile = sketch9
pocket5.Type = "ThroughAll"
pocket5.Reversed = True

# Sketch on XZ plane
sketch10 = body.newObject("Sketcher::SketchObject", "Sketch009")
sketch10.AttachmentSupport = (doc.getObject("XZ_Plane"), [""])
sketch10.MapMode = "FlatFace"
sketch10.AttachmentOffset = App.Placement(App.Vector(0, 0, 4300), App.Rotation())
sketch10.addGeometry([
    Part.LineSegment(App.Vector(950, 2080, 0), App.Vector(950, 0, 0)),
    Part.LineSegment(App.Vector(950, 0, 0), App.Vector(1750, 0, 0)),
    Part.LineSegment(App.Vector(1750, 0, 0), App.Vector(1750, 2080, 0)),
    Part.LineSegment(App.Vector(1750, 2080, 0), App.Vector(950, 2080, 0)),
], False)
sketch10.addConstraint([
    Sketcher.Constraint("Coincident", 0, 2, 1, 1),
    Sketcher.Constraint("Coincident", 1, 2, 2, 1),
    Sketcher.Constraint("Coincident", 2, 2, 3, 1),
    Sketcher.Constraint("Coincident", 3, 2, 0, 1),
    Sketcher.Constraint("Vertical", 0),
    Sketcher.Constraint("Horizontal", 1),
    Sketcher.Constraint("Vertical", 2),
    Sketcher.Constraint("Horizontal", 3),
    Sketcher.Constraint("PointOnObject", 0, 2, -1),
    Sketcher.Constraint("DistanceX", 1, 1, 1, 2, 800.0),
    Sketcher.Constraint("DistanceY", 0, 2, 0, 1, 2080.0),
    Sketcher.Constraint("DistanceX", -1, 1, 0, 2, 950.0),
])
pocket6 = body.newObject("PartDesign::Pocket", "Pocket005")
pocket6.Profile = sketch10
pocket6.Length = 200

doc.recompute()
